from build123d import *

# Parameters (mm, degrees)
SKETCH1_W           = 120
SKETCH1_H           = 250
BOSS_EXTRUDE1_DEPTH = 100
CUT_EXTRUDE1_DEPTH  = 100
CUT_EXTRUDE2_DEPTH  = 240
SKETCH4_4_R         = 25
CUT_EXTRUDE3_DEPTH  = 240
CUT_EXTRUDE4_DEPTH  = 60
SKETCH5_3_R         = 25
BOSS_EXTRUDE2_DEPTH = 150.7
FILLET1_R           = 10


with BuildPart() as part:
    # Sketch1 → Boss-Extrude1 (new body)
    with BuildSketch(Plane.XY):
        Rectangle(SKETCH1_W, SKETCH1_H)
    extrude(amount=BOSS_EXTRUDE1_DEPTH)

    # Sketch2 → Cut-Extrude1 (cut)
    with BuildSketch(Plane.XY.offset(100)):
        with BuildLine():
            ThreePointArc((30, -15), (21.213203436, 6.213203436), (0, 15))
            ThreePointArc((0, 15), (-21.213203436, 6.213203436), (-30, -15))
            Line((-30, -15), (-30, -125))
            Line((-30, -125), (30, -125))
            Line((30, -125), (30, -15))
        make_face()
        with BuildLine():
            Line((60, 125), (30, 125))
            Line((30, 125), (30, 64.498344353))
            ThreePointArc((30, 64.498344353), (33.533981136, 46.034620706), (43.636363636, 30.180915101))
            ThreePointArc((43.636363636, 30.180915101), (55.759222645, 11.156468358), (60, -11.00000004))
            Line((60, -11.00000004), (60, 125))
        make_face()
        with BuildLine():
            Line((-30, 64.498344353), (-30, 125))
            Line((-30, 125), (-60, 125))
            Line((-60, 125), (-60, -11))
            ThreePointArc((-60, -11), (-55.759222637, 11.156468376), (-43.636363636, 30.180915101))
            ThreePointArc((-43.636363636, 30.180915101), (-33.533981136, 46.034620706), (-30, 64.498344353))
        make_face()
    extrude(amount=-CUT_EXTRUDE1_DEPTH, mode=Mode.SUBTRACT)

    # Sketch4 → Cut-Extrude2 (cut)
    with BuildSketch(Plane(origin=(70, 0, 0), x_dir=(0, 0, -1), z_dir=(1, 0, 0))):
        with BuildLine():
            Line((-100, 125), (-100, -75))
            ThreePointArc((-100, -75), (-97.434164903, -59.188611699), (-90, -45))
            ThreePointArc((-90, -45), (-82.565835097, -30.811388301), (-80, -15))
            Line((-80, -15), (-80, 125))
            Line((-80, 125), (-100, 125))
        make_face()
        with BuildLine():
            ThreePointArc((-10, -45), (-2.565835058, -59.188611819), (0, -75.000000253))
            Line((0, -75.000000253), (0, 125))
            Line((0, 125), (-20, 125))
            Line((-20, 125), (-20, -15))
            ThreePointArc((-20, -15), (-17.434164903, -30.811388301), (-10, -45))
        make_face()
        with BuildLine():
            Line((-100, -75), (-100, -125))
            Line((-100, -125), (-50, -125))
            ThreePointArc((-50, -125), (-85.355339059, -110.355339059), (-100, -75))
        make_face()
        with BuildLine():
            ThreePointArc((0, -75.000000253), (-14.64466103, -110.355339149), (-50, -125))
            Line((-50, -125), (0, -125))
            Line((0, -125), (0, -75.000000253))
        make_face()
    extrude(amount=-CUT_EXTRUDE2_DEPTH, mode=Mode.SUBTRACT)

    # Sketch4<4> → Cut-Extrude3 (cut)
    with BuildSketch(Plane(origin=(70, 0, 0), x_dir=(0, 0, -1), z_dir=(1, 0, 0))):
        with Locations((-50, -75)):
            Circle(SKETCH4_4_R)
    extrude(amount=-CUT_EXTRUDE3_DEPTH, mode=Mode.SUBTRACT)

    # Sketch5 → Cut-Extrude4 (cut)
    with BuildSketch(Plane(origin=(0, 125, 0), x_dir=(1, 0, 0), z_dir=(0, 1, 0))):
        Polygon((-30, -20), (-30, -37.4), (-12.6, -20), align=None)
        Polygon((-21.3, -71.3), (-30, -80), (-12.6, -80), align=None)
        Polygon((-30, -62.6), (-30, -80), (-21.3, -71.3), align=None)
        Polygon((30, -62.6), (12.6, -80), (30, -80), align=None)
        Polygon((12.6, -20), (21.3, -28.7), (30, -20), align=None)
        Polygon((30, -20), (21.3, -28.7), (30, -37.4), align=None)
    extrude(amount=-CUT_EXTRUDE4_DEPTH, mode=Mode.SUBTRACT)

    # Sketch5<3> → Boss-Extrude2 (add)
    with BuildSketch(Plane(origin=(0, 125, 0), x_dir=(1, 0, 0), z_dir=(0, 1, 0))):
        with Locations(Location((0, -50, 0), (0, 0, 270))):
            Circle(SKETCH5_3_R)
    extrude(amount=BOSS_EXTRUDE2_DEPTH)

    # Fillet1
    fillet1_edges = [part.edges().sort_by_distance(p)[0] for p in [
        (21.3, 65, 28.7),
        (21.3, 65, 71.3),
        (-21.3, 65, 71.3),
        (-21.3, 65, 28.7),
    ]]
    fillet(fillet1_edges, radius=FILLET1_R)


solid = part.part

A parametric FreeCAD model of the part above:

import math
import FreeCAD as App
import Part
import Sketcher

V = App.Vector
Q = App.Units.Quantity


def edges_at(feature, points):
    """Names of the edges that pass closest to the given points."""
    edges = feature.Shape.Edges
    near = lambda p: min(range(len(edges)), key=lambda i: edges[i].distToShape(Part.Vertex(*p))[0])
    return sorted({f"Edge{near(p) + 1}" for p in points})

doc = App.newDocument("Part")
body = doc.addObject("PartDesign::Body", "Body")

# Sketch on XY plane
sketch1 = body.newObject("Sketcher::SketchObject", "Sketch")
sketch1.AttachmentSupport = (doc.getObject("XY_Plane"), [""])
sketch1.MapMode = "FlatFace"
sketch1.addGeometry(Part.LineSegment(V(-60, 125, 0), V(-60, -125, 0)), False)
sketch1.addGeometry(Part.LineSegment(V(-60, -125, 0), V(60, -125, 0)), False)
sketch1.addGeometry(Part.LineSegment(V(60, -125, 0), V(60, 125, 0)), False)
sketch1.addGeometry(Part.LineSegment(V(60, 125, 0), V(-60, 125, 0)), False)
sketch1.addConstraint(Sketcher.Constraint("Coincident", 0, 2, 1, 1))
sketch1.addConstraint(Sketcher.Constraint("Coincident", 1, 2, 2, 1))
sketch1.addConstraint(Sketcher.Constraint("Coincident", 2, 2, 3, 1))
sketch1.addConstraint(Sketcher.Constraint("Coincident", 3, 2, 0, 1))
sketch1.addConstraint(Sketcher.Constraint("Vertical", 0))
sketch1.addConstraint(Sketcher.Constraint("Horizontal", 1))
sketch1.addConstraint(Sketcher.Constraint("Vertical", 2))
sketch1.addConstraint(Sketcher.Constraint("Horizontal", 3))
sketch1.addConstraint(Sketcher.Constraint("Symmetric", 0, 2, 2, 2, -1, 1))
sketch1.addConstraint(Sketcher.Constraint("DistanceX", 1, 1, 1, 2, Q("120 mm")))
sketch1.addConstraint(Sketcher.Constraint("DistanceY", 0, 2, 0, 1, Q("250 mm")))
pad1 = body.newObject("PartDesign::Pad", "Pad")
pad1.Profile = sketch1
pad1.Length = 100

# Sketch on XY plane
sketch2 = body.newObject("Sketcher::SketchObject", "Sketch001")
sketch2.AttachmentSupport = (doc.getObject("XY_Plane"), [""])
sketch2.MapMode = "FlatFace"
sketch2.AttachmentOffset = App.Placement(V(0, 0, 100), App.Rotation())
sketch2.addGeometry(Part.ArcOfCircle(Part.Circle(V(0, -15, 0), V(0, 0, 1), 30), math.radians(0), math.radians(90)), False)
sketch2.addGeometry(Part.ArcOfCircle(Part.Circle(V(0, -15, 0), V(0, 0, 1), 30), math.radians(90), math.radians(180)), False)
sketch2.addGeometry(Part.LineSegment(V(-30, -15, 0), V(-30, -125, 0)), False)
sketch2.addGeometry(Part.LineSegment(V(-30, -125, 0), V(30, -125, 0)), False)
sketch2.addGeometry(Part.LineSegment(V(30, -125, 0), V(30, -15, 0)), False)
sketch2.addGeometry(Part.LineSegment(V(60, 125, 0), V(30, 125, 0)), False)
sketch2.addGeometry(Part.LineSegment(V(30, 125, 0), V(30, 64, 0)), False)
sketch2.addGeometry(Part.ArcOfCircle(Part.Circle(V(80, 64, 0), V(0, 0, 1), 50), math.radians(-180), math.radians(-137)), False)
sketch2.addGeometry(Part.ArcOfCircle(Part.Circle(V(0, -11, 0), V(0, 0, 1), 60), math.radians(0), math.radians(43)), False)
sketch2.addGeometry(Part.LineSegment(V(60, -11, 0), V(60, 125, 0)), False)
sketch2.addGeometry(Part.LineSegment(V(-30, 64, 0), V(-30, 125, 0)), False)
sketch2.addGeometry(Part.LineSegment(V(-30, 125, 0), V(-60, 125, 0)), False)
sketch2.addGeometry(Part.LineSegment(V(-60, 125, 0), V(-60, -11, 0)), False)
sketch2.addGeometry(Part.ArcOfCircle(Part.Circle(V(0, -11, 0), V(0, 0, 1), 60), math.radians(137), math.radians(180)), False)
sketch2.addGeometry(Part.ArcOfCircle(Part.Circle(V(-80, 64, 0), V(0, 0, 1), 50), math.radians(-43), math.radians(0)), False)
sketch2.addConstraint(Sketcher.Constraint("Tangent", 0, 2, 1, 1))
sketch2.addConstraint(Sketcher.Constraint("Tangent", 1, 2, 2, 1))
sketch2.addConstraint(Sketcher.Constraint("Coincident", 2, 2, 3, 1))
sketch2.addConstraint(Sketcher.Constraint("Coincident", 3, 2, 4, 1))
sketch2.addConstraint(Sketcher.Constraint("Tangent", 4, 2, 0, 1))
sketch2.addConstraint(Sketcher.Constraint("Coincident", 5, 2, 6, 1))
sketch2.addConstraint(Sketcher.Constraint("Tangent", 6, 2, 7, 1))
sketch2.addConstraint(Sketcher.Constraint("Tangent", 7, 2, 8, 2))
sketch2.addConstraint(Sketcher.Constraint("Tangent", 8, 1, 9, 1))
sketch2.addConstraint(Sketcher.Constraint("Coincident", 9, 2, 5, 1))
sketch2.addConstraint(Sketcher.Constraint("Coincident", 10, 2, 11, 1))
sketch2.addConstraint(Sketcher.Constraint("Coincident", 11, 2, 12, 1))
sketch2.addConstraint(Sketcher.Constraint("Tangent", 12, 2, 13, 2))
sketch2.addConstraint(Sketcher.Constraint("Tangent", 13, 1, 14, 1))
sketch2.addConstraint(Sketcher.Constraint("Tangent", 14, 2, 10, 1))
sketch2.addConstraint(Sketcher.Constraint("Vertical", 2))
sketch2.addConstraint(Sketcher.Constraint("Horizontal", 3))
sketch2.addConstraint(Sketcher.Constraint("Vertical", 4))
sketch2.addConstraint(Sketcher.Constraint("Horizontal", 5))
sketch2.addConstraint(Sketcher.Constraint("Vertical", 6))
sketch2.addConstraint(Sketcher.Constraint("Vertical", 9))
sketch2.addConstraint(Sketcher.Constraint("Vertical", 10))
sketch2.addConstraint(Sketcher.Constraint("Horizontal", 11))
sketch2.addConstraint(Sketcher.Constraint("Vertical", 12))
sketch2.addConstraint(Sketcher.Constraint("Coincident", 13, 3, 8, 3))
sketch2.addConstraint(Sketcher.Constraint("Equal", 0, 1))
sketch2.addConstraint(Sketcher.Constraint("Equal", 8, 13))
sketch2.addConstraint(Sketcher.Constraint("Equal", 7, 14))
sketch2.addConstraint(Sketcher.Constraint("Symmetric", 2, 2, 5, 2, -1, 1))
sketch2.addConstraint(Sketcher.Constraint("Symmetric", 3, 2, 10, 2, -1, 1))
sketch2.addConstraint(Sketcher.Constraint("Symmetric", 7, 3, 14, 3, -2))
sketch2.addConstraint(Sketcher.Constraint("PointOnObject", 0, 2, -2))
sketch2.addConstraint(Sketcher.Constraint("Radius", 0, Q("30 mm")))
sketch2.addConstraint(Sketcher.Constraint("Radius", 7, Q("50 mm")))
sketch2.addConstraint(Sketcher.Constraint("Radius", 8, Q("60 mm")))
sketch2.addConstraint(Sketcher.Constraint("DistanceY", 2, 2, 2, 1, Q("110 mm")))
sketch2.addConstraint(Sketcher.Constraint("DistanceY", 9, 1, 9, 2, Q("136 mm")))
sketch2.addConstraint(Sketcher.Constraint("DistanceY", 0, 3, -1, 1, Q("15 mm")))
pocket1 = body.newObject("PartDesign::Pocket", "Pocket")
pocket1.Profile = sketch2
pocket1.Length = 100

# Sketch on YZ plane
sketch3 = body.newObject("Sketcher::SketchObject", "Sketch002")
sketch3.AttachmentSupport = (doc.getObject("YZ_Plane"), [""])
sketch3.MapMode = "FlatFace"
sketch3.AttachmentOffset = App.Placement(V(0, 0, 70), App.Rotation())
sketch3.addGeometry(Part.LineSegment(V(125, 100, 0), V(-75, 100, 0)), False)
sketch3.addGeometry(Part.ArcOfCircle(Part.Circle(V(-75, 50, 0), V(0, 0, 1), 50), math.radians(53), math.radians(90)), False)
sketch3.addGeometry(Part.ArcOfCircle(Part.Circle(V(-15, 130, 0), V(0, 0, 1), 50), math.radians(-127), math.radians(-90)), False)
sketch3.addGeometry(Part.LineSegment(V(-15, 80, 0), V(125, 80, 0)), False)
sketch3.addGeometry(Part.LineSegment(V(125, 80, 0), V(125, 100, 0)), False)
sketch3.addGeometry(Part.ArcOfCircle(Part.Circle(V(-75, 50, 0), V(0, 0, 1), 50), math.radians(-90), math.radians(-53)), False)
sketch3.addGeometry(Part.LineSegment(V(-75, 0, 0), V(125, 0, 0)), False)
sketch3.addGeometry(Part.LineSegment(V(125, 0, 0), V(125, 20, 0)), False)
sketch3.addGeometry(Part.LineSegment(V(125, 20, 0), V(-15, 20, 0)), False)
sketch3.addGeometry(Part.ArcOfCircle(Part.Circle(V(-15, -30, 0), V(0, 0, 1), 50), math.radians(90), math.radians(127)), False)
sketch3.addGeometry(Part.LineSegment(V(-75, 100, 0), V(-125, 100, 0)), False)
sketch3.addGeometry(Part.LineSegment(V(-125, 100, 0), V(-125, 50, 0)), False)
sketch3.addGeometry(Part.ArcOfCircle(Part.Circle(V(-75, 50, 0), V(0, 0, 1), 50), math.radians(90), math.radians(180)), False)
sketch3.addGeometry(Part.ArcOfCircle(Part.Circle(V(-75, 50, 0), V(0, 0, 1), 50), math.radians(180), math.radians(270)), False)
sketch3.addGeometry(Part.LineSegment(V(-125, 50, 0), V(-125, 0, 0)), False)
sketch3.addGeometry(Part.LineSegment(V(-125, 0, 0), V(-75, 0, 0)), False)
sketch3.addConstraint(Sketcher.Constraint("Tangent", 0, 2, 1, 2))
sketch3.addConstraint(Sketcher.Constraint("Tangent", 1, 1, 2, 1))
sketch3.addConstraint(Sketcher.Constraint("Tangent", 2, 2, 3, 1))
sketch3.addConstraint(Sketcher.Constraint("Coincident", 3, 2, 4, 1))
sketch3.addConstraint(Sketcher.Constraint("Coincident", 4, 2, 0, 1))
sketch3.addConstraint(Sketcher.Constraint("Tangent", 5, 1, 6, 1))
sketch3.addConstraint(Sketcher.Constraint("Coincident", 6, 2, 7, 1))
sketch3.addConstraint(Sketcher.Constraint("Coincident", 7, 2, 8, 1))
sketch3.addConstraint(Sketcher.Constraint("Tangent", 8, 2, 9, 1))
sketch3.addConstraint(Sketcher.Constraint("Tangent", 9, 2, 5, 2))
sketch3.addConstraint(Sketcher.Constraint("Coincident", 10, 2, 11, 1))
sketch3.addConstraint(Sketcher.Constraint("Tangent", 11, 2, 12, 2))
sketch3.addConstraint(Sketcher.Constraint("Tangent", 12, 1, 10, 1))
sketch3.addConstraint(Sketcher.Constraint("Tangent", 13, 1, 14, 1))
sketch3.addConstraint(Sketcher.Constraint("Coincident", 14, 2, 15, 1))
sketch3.addConstraint(Sketcher.Constraint("Tangent", 15, 2, 13, 2))
sketch3.addConstraint(Sketcher.Constraint("Horizontal", 0))
sketch3.addConstraint(Sketcher.Constraint("Horizontal", 3))
sketch3.addConstraint(Sketcher.Constraint("Vertical", 4))
sketch3.addConstraint(Sketcher.Constraint("Horizontal", 6))
sketch3.addConstraint(Sketcher.Constraint("Vertical", 7))
sketch3.addConstraint(Sketcher.Constraint("Horizontal", 8))
sketch3.addConstraint(Sketcher.Constraint("Horizontal", 10))
sketch3.addConstraint(Sketcher.Constraint("Vertical", 11))
sketch3.addConstraint(Sketcher.Constraint("Vertical", 14))
sketch3.addConstraint(Sketcher.Constraint("Horizontal", 15))
sketch3.addConstraint(Sketcher.Constraint("Coincident", 5, 3, 1, 3))
sketch3.addConstraint(Sketcher.Constraint("Coincident", 12, 3, 1, 3))
sketch3.addConstraint(Sketcher.Constraint("Coincident", 13, 3, 1, 3))
sketch3.addConstraint(Sketcher.Constraint("Equal", 1, 2))
sketch3.addConstraint(Sketcher.Constraint("Equal", 2, 5))
sketch3.addConstraint(Sketcher.Constraint("Equal", 5, 9))
sketch3.addConstraint(Sketcher.Constraint("Equal", 9, 12))
sketch3.addConstraint(Sketcher.Constraint("Equal", 12, 13))
sketch3.addConstraint(Sketcher.Constraint("Symmetric", 6, 2, 14, 2, -1, 1))
sketch3.addConstraint(Sketcher.Constraint("Vertical", 2, 3, 9, 3))
sketch3.addConstraint(Sketcher.Constraint("Vertical", 4, 2, 6, 2))
sketch3.addConstraint(Sketcher.Constraint("Radius", 1, Q("50 mm")))
sketch3.addConstraint(Sketcher.Constraint("DistanceX", 0, 2, 0, 1, Q("200 mm")))
sketch3.addConstraint(Sketcher.Constraint("DistanceX", 3, 1, 3, 2, Q("140 mm")))
pocket2 = body.newObject("PartDesign::Pocket", "Pocket001")
pocket2.Profile = sketch3
pocket2.Length = 240

# Sketch on YZ plane
sketch4 = body.newObject("Sketcher::SketchObject", "Sketch003")
sketch4.AttachmentSupport = (doc.getObject("YZ_Plane"), [""])
sketch4.MapMode = "FlatFace"
sketch4.AttachmentOffset = App.Placement(V(0, 0, 70), App.Rotation())
sketch4.addGeometry(Part.Circle(V(-75, 50, 0), V(0, 0, 1), 25), False)
sketch4.addConstraint(Sketcher.Constraint("Diameter", 0, Q("50 mm")))
sketch4.addConstraint(Sketcher.Constraint("DistanceX", 0, 3, -1, 1, Q("75 mm")))
sketch4.addConstraint(Sketcher.Constraint("DistanceY", -1, 1, 0, 3, Q("50 mm")))
pocket3 = body.newObject("PartDesign::Pocket", "Pocket002")
pocket3.Profile = sketch4
pocket3.Length = 240

# Sketch on XZ plane
sketch5 = body.newObject("Sketcher::SketchObject", "Sketch004")
sketch5.AttachmentSupport = (doc.getObject("XZ_Plane"), [""])
sketch5.MapMode = "FlatFace"
sketch5.AttachmentOffset = App.Placement(V(0, 0, -125), App.Rotation())
sketch5.addGeometry(Part.LineSegment(V(-30, 20, 0), V(-30, 37, 0)), False)
sketch5.addGeometry(Part.LineSegment(V(-30, 37, 0), V(-13, 20, 0)), False)
sketch5.addGeometry(Part.LineSegment(V(-13, 20, 0), V(-30, 20, 0)), False)
sketch5.addGeometry(Part.LineSegment(V(-30, 80, 0), V(-13, 80, 0)), False)
sketch5.addGeometry(Part.LineSegment(V(-13, 80, 0), V(-30, 63, 0)), False)
sketch5.addGeometry(Part.LineSegment(V(-30, 63, 0), V(-30, 80, 0)), False)
sketch5.addGeometry(Part.LineSegment(V(30, 63, 0), V(13, 80, 0)), False)
sketch5.addGeometry(Part.LineSegment(V(13, 80, 0), V(30, 80, 0)), False)
sketch5.addGeometry(Part.LineSegment(V(30, 80, 0), V(30, 63, 0)), False)
sketch5.addGeometry(Part.LineSegment(V(13, 20, 0), V(30, 37, 0)), False)
sketch5.addGeometry(Part.LineSegment(V(30, 37, 0), V(30, 20, 0)), False)
sketch5.addGeometry(Part.LineSegment(V(30, 20, 0), V(13, 20, 0)), False)
sketch5.addConstraint(Sketcher.Constraint("Coincident", 0, 2, 1, 1))
sketch5.addConstraint(Sketcher.Constraint("Coincident", 1, 2, 2, 1))
sketch5.addConstraint(Sketcher.Constraint("Coincident", 2, 2, 0, 1))
sketch5.addConstraint(Sketcher.Constraint("Coincident", 3, 2, 4, 1))
sketch5.addConstraint(Sketcher.Constraint("Coincident", 4, 2, 5, 1))
sketch5.addConstraint(Sketcher.Constraint("Coincident", 5, 2, 3, 1))
sketch5.addConstraint(Sketcher.Constraint("Coincident", 6, 2, 7, 1))
sketch5.addConstraint(Sketcher.Constraint("Coincident", 7, 2, 8, 1))
sketch5.addConstraint(Sketcher.Constraint("Coincident", 8, 2, 6, 1))
sketch5.addConstraint(Sketcher.Constraint("Coincident", 9, 2, 10, 1))
sketch5.addConstraint(Sketcher.Constraint("Coincident", 10, 2, 11, 1))
sketch5.addConstraint(Sketcher.Constraint("Coincident", 11, 2, 9, 1))
sketch5.addConstraint(Sketcher.Constraint("Vertical", 0))
sketch5.addConstraint(Sketcher.Constraint("Horizontal", 2))
sketch5.addConstraint(Sketcher.Constraint("Horizontal", 3))
sketch5.addConstraint(Sketcher.Constraint("Vertical", 5))
sketch5.addConstraint(Sketcher.Constraint("Horizontal", 7))
sketch5.addConstraint(Sketcher.Constraint("Vertical", 8))
sketch5.addConstraint(Sketcher.Constraint("Vertical", 10))
sketch5.addConstraint(Sketcher.Constraint("Horizontal", 11))
sketch5.addConstraint(Sketcher.Constraint("Symmetric", 3, 2, 6, 2, -2))
sketch5.addConstraint(Sketcher.Constraint("Symmetric", 4, 2, 8, 2, -2))
sketch5.addConstraint(Sketcher.Constraint("Symmetric", 0, 2, 9, 2, -2))
sketch5.addConstraint(Sketcher.Constraint("Symmetric", 1, 2, 11, 2, -2))
sketch5.addConstraint(Sketcher.Constraint("Perpendicular", 1, 4))
sketch5.addConstraint(Sketcher.Constraint("Perpendicular", 4, 6))
sketch5.addConstraint(Sketcher.Constraint("Vertical", 1, 2, 3, 2))
sketch5.addConstraint(Sketcher.Constraint("Vertical", 2, 2, 4, 2))
sketch5.addConstraint(Sketcher.Constraint("DistanceX", 2, 2, 2, 1, Q("17.4 mm")))
sketch5.addConstraint(Sketcher.Constraint("DistanceX", 0, 2, -1, 1, Q("30 mm")))
sketch5.addConstraint(Sketcher.Constraint("DistanceY", -1, 1, 1, 2, Q("20 mm")))
sketch5.addConstraint(Sketcher.Constraint("DistanceY", -1, 1, 3, 2, Q("80 mm")))
pocket4 = body.newObject("PartDesign::Pocket", "Pocket003")
pocket4.Profile = sketch5
pocket4.Length = 60
pocket4.Reversed = True

# Sketch on XZ plane
sketch6 = body.newObject("Sketcher::SketchObject", "Sketch005")
sketch6.AttachmentSupport = (doc.getObject("XZ_Plane"), [""])
sketch6.MapMode = "FlatFace"
sketch6.AttachmentOffset = App.Placement(V(0, 0, -125), App.Rotation())
sketch6.addGeometry(Part.Circle(V(0, 50, 0), V(0, 0, 1), 25), False)
sketch6.addConstraint(Sketcher.Constraint("PointOnObject", 0, 3, -2))
sketch6.addConstraint(Sketcher.Constraint("Diameter", 0, Q("50 mm")))
sketch6.addConstraint(Sketcher.Constraint("DistanceY", -1, 1, 0, 3, Q("50 mm")))
pad2 = body.newObject("PartDesign::Pad", "Pad001")
pad2.Profile = sketch6
pad2.Length = 150.7
pad2.Reversed = True
doc.recompute()

fillet = body.newObject("PartDesign::Fillet", "Fillet")
fillet.Base = (pad2, edges_at(pad2, [
    (21.3, 65, 28.7),
    (21.3, 65, 71.3),
    (-21.3, 65, 71.3),
    (-21.3, 65, 28.7),
]))
fillet.Radius = 10

doc.recompute()
